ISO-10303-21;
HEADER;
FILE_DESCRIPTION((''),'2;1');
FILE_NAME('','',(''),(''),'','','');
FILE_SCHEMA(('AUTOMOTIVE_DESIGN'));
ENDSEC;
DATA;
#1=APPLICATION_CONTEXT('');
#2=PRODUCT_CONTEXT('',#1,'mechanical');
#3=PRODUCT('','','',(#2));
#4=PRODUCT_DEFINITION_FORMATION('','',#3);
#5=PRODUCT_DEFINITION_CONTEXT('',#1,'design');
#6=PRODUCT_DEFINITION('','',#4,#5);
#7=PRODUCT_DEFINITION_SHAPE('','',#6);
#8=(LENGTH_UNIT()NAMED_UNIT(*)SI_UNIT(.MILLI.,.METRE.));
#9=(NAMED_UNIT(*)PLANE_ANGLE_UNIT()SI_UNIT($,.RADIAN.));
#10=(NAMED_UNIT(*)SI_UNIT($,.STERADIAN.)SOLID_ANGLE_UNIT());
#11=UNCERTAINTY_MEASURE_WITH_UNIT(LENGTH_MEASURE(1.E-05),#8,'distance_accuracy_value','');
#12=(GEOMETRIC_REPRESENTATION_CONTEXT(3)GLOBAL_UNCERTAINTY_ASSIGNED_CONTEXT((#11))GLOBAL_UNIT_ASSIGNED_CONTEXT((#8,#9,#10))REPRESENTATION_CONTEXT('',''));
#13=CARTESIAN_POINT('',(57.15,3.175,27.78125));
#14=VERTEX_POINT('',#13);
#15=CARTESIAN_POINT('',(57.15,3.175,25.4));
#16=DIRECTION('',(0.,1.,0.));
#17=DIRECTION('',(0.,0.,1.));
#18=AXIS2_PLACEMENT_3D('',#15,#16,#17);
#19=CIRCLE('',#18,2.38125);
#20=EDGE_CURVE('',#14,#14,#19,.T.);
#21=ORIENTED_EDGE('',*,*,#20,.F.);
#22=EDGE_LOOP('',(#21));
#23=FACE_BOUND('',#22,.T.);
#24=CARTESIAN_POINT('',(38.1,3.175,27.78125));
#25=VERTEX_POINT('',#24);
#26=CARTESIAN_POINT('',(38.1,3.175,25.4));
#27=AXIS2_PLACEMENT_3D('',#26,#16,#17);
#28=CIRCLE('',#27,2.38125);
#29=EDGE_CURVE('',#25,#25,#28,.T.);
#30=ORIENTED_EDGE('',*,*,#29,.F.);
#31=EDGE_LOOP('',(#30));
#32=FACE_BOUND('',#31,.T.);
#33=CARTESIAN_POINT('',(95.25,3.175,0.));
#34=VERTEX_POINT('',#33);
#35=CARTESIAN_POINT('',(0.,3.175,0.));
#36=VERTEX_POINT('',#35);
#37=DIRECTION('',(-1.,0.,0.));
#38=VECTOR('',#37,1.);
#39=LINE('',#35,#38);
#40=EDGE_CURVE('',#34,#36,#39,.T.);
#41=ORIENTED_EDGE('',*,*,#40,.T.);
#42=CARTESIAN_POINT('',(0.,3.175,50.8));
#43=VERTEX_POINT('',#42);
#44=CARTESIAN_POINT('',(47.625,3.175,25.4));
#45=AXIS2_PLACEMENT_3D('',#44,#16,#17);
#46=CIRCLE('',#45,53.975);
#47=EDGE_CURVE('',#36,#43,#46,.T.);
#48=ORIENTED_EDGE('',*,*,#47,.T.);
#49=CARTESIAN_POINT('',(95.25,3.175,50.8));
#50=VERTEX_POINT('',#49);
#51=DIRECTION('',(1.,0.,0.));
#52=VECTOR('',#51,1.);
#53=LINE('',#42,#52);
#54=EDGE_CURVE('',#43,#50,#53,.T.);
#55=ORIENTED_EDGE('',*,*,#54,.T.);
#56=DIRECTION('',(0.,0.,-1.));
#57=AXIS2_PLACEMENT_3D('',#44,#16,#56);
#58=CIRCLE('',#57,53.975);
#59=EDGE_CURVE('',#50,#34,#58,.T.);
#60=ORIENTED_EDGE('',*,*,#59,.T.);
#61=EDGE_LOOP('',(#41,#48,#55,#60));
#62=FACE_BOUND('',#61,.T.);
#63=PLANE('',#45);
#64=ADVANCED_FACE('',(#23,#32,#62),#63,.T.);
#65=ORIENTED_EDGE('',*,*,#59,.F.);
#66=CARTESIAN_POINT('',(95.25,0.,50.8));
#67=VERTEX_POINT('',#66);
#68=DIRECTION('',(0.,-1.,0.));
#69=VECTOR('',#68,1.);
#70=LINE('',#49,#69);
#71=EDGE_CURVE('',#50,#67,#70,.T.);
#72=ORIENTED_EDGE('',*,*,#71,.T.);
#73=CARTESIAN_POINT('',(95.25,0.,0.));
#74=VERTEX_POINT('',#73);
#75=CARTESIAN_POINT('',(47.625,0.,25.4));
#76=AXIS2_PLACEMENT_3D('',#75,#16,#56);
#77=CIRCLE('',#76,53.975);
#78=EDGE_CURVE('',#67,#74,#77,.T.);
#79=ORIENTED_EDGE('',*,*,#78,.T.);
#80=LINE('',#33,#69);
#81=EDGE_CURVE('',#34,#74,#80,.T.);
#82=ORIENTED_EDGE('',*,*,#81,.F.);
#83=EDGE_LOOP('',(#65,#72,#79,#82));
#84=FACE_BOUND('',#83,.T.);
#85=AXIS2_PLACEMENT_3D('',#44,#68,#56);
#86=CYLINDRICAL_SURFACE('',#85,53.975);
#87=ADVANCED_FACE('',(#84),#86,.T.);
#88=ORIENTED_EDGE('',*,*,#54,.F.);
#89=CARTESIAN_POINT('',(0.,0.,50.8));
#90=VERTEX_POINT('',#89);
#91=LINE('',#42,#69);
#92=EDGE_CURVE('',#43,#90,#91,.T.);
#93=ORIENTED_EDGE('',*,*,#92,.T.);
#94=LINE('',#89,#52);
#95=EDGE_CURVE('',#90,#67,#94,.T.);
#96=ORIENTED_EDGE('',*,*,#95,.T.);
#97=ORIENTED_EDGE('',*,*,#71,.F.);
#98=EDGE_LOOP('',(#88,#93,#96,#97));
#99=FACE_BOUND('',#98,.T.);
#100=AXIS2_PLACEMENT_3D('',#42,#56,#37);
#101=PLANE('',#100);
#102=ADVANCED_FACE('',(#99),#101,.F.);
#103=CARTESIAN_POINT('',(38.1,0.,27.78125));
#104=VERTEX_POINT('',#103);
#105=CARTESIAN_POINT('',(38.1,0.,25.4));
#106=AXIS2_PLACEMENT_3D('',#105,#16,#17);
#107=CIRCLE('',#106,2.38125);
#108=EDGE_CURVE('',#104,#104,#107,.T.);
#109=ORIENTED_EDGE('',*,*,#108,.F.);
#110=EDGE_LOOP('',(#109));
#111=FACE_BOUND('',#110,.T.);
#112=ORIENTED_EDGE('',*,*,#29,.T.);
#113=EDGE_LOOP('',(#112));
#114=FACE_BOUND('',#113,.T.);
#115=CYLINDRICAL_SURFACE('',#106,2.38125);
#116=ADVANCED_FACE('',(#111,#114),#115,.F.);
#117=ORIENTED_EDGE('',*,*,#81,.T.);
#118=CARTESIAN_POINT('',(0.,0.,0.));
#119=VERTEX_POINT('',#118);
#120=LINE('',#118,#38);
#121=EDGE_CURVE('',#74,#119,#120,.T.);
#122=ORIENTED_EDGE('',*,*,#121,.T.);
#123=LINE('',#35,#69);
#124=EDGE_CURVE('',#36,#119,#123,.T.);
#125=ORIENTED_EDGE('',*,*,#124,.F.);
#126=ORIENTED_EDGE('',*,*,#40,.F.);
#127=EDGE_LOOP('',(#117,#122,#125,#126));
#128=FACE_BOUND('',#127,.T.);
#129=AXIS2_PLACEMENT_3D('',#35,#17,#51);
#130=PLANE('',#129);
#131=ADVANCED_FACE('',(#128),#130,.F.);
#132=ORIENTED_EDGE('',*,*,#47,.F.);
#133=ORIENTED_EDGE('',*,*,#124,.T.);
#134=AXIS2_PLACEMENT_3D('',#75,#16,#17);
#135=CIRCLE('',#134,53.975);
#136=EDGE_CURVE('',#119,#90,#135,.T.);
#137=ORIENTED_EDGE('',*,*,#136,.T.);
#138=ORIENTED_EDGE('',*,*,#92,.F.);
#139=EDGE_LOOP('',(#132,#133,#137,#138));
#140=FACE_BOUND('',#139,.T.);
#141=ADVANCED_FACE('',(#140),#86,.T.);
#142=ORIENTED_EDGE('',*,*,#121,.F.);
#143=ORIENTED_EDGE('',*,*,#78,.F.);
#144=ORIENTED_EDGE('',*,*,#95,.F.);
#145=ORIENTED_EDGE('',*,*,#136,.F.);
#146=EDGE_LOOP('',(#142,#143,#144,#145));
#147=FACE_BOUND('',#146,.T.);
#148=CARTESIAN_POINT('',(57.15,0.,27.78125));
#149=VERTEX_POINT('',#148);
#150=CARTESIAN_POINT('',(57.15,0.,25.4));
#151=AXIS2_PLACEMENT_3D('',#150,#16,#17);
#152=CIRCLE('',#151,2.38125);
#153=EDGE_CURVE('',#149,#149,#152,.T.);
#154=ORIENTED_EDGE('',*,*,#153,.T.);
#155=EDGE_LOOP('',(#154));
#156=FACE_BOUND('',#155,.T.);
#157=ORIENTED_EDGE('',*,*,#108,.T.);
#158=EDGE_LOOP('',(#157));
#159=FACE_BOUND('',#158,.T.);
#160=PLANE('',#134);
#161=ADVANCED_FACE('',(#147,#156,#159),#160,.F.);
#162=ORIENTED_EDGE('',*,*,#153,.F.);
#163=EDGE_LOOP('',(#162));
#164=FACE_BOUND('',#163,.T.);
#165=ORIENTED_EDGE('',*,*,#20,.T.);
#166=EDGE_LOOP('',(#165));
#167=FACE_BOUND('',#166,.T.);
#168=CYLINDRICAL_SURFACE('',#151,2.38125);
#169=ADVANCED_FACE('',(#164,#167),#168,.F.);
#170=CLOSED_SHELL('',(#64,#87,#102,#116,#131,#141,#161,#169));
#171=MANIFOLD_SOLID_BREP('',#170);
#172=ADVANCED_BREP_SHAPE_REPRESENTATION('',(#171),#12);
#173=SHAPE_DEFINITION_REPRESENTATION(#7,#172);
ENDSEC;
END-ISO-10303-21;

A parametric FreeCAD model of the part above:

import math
import FreeCAD as App
import Part
import Sketcher
Q = App.Units.Quantity

doc = App.newDocument("Part")
body = doc.addObject("PartDesign::Body", "Body")

# Sketch on XZ plane
sketch1 = body.newObject("Sketcher::SketchObject", "Sketch")
sketch1.AttachmentSupport = (doc.getObject("XZ_Plane"), [""])
sketch1.MapMode = "FlatFace"
sketch1.addGeometry([
    Part.LineSegment(App.Vector(95, 0, 0), App.Vector(0, 0, 0)),
    Part.ArcOfCircle(Part.Circle(App.Vector(48, 25, 0), App.Vector(0, 0, 1), 54), math.radians(152), math.radians(208)),
    Part.LineSegment(App.Vector(0, 51, 0), App.Vector(95, 51, 0)),
    Part.ArcOfCircle(Part.Circle(App.Vector(48, 25, 0), App.Vector(0, 0, 1), 54), math.radians(-28), math.radians(28)),
], False)
sketch1.addConstraint([
    Sketcher.Constraint("Coincident", 0, 2, 1, 2),
    Sketcher.Constraint("Coincident", 1, 1, 2, 1),
    Sketcher.Constraint("Coincident", 2, 2, 3, 2),
    Sketcher.Constraint("Coincident", 3, 1, 0, 1),
    Sketcher.Constraint("Horizontal", 0),
    Sketcher.Constraint("Horizontal", 2),
    Sketcher.Constraint("Coincident", 0, 2, -1, 1),
    Sketcher.Constraint("Coincident", 3, 3, 1, 3),
    Sketcher.Constraint("Equal", 1, 3),
    Sketcher.Constraint("PointOnObject", 1, 1, -2),
    Sketcher.Constraint("DistanceY", -1, 1, 1, 3, Q("1 in")),
    Sketcher.Constraint("Radius", 1, Q("2.125 in")),
])
pad1 = body.newObject("PartDesign::Pad", "Pad")
pad1.Profile = sketch1
pad1.Length = Q("0.125 in")
pad1.Reversed = True

# Sketch on XZ plane
sketch2 = body.newObject("Sketcher::SketchObject", "Sketch001")
sketch2.AttachmentSupport = (doc.getObject("XZ_Plane"), [""])
sketch2.MapMode = "FlatFace"
sketch2.AttachmentOffset = App.Placement(App.Vector(0, 0, -0.125 * 25.4), App.Rotation())
sketch2.addGeometry([
    Part.Circle(App.Vector(38.1, 25.4, 0), App.Vector(0, 0, 1), 2.4),
    Part.Circle(App.Vector(57.1, 25.4, 0), App.Vector(0, 0, 1), 2.4),
], False)
sketch2.addConstraint([
    Sketcher.Constraint("Equal", 0, 1),
    Sketcher.Constraint("Horizontal", 0, 3, 1, 3),
    Sketcher.Constraint("Diameter", 0, Q("0.1875 in")),
    Sketcher.Constraint("DistanceY", -1, 1, 0, 3, Q("1 in")),
    Sketcher.Constraint("DistanceX", -1, 1, 0, 3, Q("1.5 in")),
    Sketcher.Constraint("DistanceX", -1, 1, 1, 3, Q("2.25 in")),
])
pocket1 = body.newObject("PartDesign::Pocket", "Pocket")
pocket1.Profile = sketch2
pocket1.Length = Q("0.125 in")
pocket1.Reversed = True

doc.recompute()
